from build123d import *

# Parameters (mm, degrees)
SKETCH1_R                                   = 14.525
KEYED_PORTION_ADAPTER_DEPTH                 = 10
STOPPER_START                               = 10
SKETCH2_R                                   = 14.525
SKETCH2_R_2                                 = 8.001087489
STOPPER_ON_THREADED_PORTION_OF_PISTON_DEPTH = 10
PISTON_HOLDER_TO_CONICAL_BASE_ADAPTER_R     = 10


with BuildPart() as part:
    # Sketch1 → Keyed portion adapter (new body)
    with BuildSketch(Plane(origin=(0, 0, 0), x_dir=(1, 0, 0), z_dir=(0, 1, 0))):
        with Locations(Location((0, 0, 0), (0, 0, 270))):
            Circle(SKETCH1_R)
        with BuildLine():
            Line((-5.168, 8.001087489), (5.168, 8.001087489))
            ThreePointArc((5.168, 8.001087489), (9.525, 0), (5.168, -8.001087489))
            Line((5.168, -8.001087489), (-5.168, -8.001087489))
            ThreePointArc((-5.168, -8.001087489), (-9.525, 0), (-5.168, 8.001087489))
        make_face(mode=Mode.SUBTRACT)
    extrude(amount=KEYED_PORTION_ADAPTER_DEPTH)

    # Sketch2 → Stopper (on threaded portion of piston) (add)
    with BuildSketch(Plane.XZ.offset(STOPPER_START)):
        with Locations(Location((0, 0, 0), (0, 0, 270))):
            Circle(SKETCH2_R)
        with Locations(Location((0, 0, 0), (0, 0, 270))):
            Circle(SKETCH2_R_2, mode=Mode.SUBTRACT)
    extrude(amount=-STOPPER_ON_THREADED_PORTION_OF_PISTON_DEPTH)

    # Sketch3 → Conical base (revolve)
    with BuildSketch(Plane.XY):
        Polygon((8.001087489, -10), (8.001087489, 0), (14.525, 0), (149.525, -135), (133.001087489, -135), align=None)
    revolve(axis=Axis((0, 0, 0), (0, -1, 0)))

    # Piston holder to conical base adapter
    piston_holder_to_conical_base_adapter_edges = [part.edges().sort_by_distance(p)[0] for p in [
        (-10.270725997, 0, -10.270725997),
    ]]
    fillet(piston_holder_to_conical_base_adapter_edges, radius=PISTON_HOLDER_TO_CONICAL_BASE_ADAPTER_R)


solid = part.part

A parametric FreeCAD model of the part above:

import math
import FreeCAD as App
import Part
import Sketcher

V = App.Vector
Q = App.Units.Quantity


def edges_at(feature, points):
    """Names of the edges that pass closest to the given points."""
    edges = feature.Shape.Edges
    near = lambda p: min(range(len(edges)), key=lambda i: edges[i].distToShape(Part.Vertex(*p))[0])
    return sorted({f"Edge{near(p) + 1}" for p in points})


def add_polygon(sketch, points):
    """Adds a closed chain of lines whose ends are joined by coincident constraints."""
    first, n = sketch.GeometryCount, len(points)
    for a, b in zip(points, points[1:] + points[:1]):
        sketch.addGeometry(Part.LineSegment(App.Vector(*a, 0), App.Vector(*b, 0)), False)
    for i in range(n):
        sketch.addConstraint(Sketcher.Constraint("Coincident", first + i, 2, first + (i + 1) % n, 1))

doc = App.newDocument("Part")
body = doc.addObject("PartDesign::Body", "Body")

# Sketch on XZ plane
sketch1 = body.newObject("Sketcher::SketchObject", "Sketch")
sketch1.AttachmentSupport = (doc.getObject("XZ_Plane"), [""])
sketch1.MapMode = "FlatFace"
sketch1.addGeometry([
    Part.Circle(V(0, 0, 0), V(0, 0, 1), 14.525),  # 0
    Part.ArcOfCircle(Part.Circle(V(0, 0, 0), V(0, 0, 1), 9.525), math.radians(122.85891), math.radians(237.14109)),  # 1
    Part.LineSegment(V(-5.168, -8.001087, 0), V(5.168, -8.001087, 0)),  # 2
    Part.ArcOfCircle(Part.Circle(V(0, 0, 0), V(0, 0, 1), 9.525), math.radians(-57.14109), math.radians(57.14109)),  # 3
    Part.LineSegment(V(5.168, 8.001087, 0), V(-5.168, 8.001087, 0)),  # 4
], False)
sketch1.addConstraint([
    Sketcher.Constraint("Coincident", 1, 2, 2, 1),
    Sketcher.Constraint("Coincident", 2, 2, 3, 1),
    Sketcher.Constraint("Coincident", 3, 2, 4, 1),
    Sketcher.Constraint("Coincident", 4, 2, 1, 1),
    Sketcher.Constraint("Horizontal", 2),
    Sketcher.Constraint("Horizontal", 4),
    Sketcher.Constraint("Coincident", 0, 3, -1, 1),
    Sketcher.Constraint("Coincident", 1, 3, -1, 1),
    Sketcher.Constraint("Coincident", 3, 3, -1, 1),
    Sketcher.Constraint("Equal", 1, 3),
    Sketcher.Constraint("Vertical", 2, 2, 3, 2),
    Sketcher.Constraint("Diameter", 0, Q("29.05 mm")),
    Sketcher.Constraint("Radius", 1, Q("9.525 mm")),
    Sketcher.Constraint("DistanceX", 2, 1, 2, 2, Q("10.336 mm")),
])
pad1 = body.newObject("PartDesign::Pad", "Pad")
pad1.Profile = sketch1
pad1.Length = 10
pad1.Reversed = True

# Sketch on XZ plane
sketch2 = body.newObject("Sketcher::SketchObject", "Sketch001")
sketch2.AttachmentSupport = (doc.getObject("XZ_Plane"), [""])
sketch2.MapMode = "FlatFace"
sketch2.AttachmentOffset = App.Placement(V(0, 0, 10), App.Rotation())
sketch2.addGeometry([
    Part.Circle(V(0, 0, 0), V(0, 0, 1), 14.525),
    Part.Circle(V(0, 0, 0), V(0, 0, 1), 8.001087),
], False)
sketch2.addConstraint([
    Sketcher.Constraint("Coincident", 0, 3, -1, 1),
    Sketcher.Constraint("Coincident", 1, 3, -1, 1),
    Sketcher.Constraint("Diameter", 0, Q("29.05 mm")),
    Sketcher.Constraint("Diameter", 1, Q("16.002175 mm")),
])
pad2 = body.newObject("PartDesign::Pad", "Pad001")
pad2.Profile = sketch2
pad2.Length = 10
pad2.Reversed = True

# Sketch on XY plane
sketch3 = body.newObject("Sketcher::SketchObject", "Sketch002")
sketch3.AttachmentSupport = (doc.getObject("XY_Plane"), [""])
sketch3.MapMode = "FlatFace"
add_polygon(sketch3, [(8.001087, 0), (8.001087, -10), (133.001087, -135), (149.525, -135), (14.525, 0)])  # lines 0-4
sketch3.addConstraint([
    Sketcher.Constraint("Vertical", 0),
    Sketcher.Constraint("Horizontal", 2),
    Sketcher.Constraint("Horizontal", 4),
    Sketcher.Constraint("PointOnObject", 3, 2, -1),
    Sketcher.Constraint("Parallel", 1, 3),
    Sketcher.Constraint("DistanceY", 0, 2, 0, 1, Q("10 mm")),
    Sketcher.Constraint("Angle", 1, Q("-45 deg")),
    Sketcher.Constraint("DistanceY", 1, 2, -1, 1, Q("135 mm")),
    Sketcher.Constraint("DistanceX", -1, 1, 2, 2, Q("149.525 mm")),
    Sketcher.Constraint("DistanceX", 2, 1, 2, 2, Q("16.523913 mm")),
])
revolution = body.newObject("PartDesign::Revolution", "Revolution")
revolution.Profile = sketch3
revolution.ReferenceAxis = (sketch3, ["V_Axis"])
revolution.Angle = 360
doc.recompute()

fillet = body.newObject("PartDesign::Fillet", "Fillet")
fillet.Base = (revolution, edges_at(revolution, [(-10.271, 0, -10.271)]))
fillet.Radius = 10

doc.recompute()
